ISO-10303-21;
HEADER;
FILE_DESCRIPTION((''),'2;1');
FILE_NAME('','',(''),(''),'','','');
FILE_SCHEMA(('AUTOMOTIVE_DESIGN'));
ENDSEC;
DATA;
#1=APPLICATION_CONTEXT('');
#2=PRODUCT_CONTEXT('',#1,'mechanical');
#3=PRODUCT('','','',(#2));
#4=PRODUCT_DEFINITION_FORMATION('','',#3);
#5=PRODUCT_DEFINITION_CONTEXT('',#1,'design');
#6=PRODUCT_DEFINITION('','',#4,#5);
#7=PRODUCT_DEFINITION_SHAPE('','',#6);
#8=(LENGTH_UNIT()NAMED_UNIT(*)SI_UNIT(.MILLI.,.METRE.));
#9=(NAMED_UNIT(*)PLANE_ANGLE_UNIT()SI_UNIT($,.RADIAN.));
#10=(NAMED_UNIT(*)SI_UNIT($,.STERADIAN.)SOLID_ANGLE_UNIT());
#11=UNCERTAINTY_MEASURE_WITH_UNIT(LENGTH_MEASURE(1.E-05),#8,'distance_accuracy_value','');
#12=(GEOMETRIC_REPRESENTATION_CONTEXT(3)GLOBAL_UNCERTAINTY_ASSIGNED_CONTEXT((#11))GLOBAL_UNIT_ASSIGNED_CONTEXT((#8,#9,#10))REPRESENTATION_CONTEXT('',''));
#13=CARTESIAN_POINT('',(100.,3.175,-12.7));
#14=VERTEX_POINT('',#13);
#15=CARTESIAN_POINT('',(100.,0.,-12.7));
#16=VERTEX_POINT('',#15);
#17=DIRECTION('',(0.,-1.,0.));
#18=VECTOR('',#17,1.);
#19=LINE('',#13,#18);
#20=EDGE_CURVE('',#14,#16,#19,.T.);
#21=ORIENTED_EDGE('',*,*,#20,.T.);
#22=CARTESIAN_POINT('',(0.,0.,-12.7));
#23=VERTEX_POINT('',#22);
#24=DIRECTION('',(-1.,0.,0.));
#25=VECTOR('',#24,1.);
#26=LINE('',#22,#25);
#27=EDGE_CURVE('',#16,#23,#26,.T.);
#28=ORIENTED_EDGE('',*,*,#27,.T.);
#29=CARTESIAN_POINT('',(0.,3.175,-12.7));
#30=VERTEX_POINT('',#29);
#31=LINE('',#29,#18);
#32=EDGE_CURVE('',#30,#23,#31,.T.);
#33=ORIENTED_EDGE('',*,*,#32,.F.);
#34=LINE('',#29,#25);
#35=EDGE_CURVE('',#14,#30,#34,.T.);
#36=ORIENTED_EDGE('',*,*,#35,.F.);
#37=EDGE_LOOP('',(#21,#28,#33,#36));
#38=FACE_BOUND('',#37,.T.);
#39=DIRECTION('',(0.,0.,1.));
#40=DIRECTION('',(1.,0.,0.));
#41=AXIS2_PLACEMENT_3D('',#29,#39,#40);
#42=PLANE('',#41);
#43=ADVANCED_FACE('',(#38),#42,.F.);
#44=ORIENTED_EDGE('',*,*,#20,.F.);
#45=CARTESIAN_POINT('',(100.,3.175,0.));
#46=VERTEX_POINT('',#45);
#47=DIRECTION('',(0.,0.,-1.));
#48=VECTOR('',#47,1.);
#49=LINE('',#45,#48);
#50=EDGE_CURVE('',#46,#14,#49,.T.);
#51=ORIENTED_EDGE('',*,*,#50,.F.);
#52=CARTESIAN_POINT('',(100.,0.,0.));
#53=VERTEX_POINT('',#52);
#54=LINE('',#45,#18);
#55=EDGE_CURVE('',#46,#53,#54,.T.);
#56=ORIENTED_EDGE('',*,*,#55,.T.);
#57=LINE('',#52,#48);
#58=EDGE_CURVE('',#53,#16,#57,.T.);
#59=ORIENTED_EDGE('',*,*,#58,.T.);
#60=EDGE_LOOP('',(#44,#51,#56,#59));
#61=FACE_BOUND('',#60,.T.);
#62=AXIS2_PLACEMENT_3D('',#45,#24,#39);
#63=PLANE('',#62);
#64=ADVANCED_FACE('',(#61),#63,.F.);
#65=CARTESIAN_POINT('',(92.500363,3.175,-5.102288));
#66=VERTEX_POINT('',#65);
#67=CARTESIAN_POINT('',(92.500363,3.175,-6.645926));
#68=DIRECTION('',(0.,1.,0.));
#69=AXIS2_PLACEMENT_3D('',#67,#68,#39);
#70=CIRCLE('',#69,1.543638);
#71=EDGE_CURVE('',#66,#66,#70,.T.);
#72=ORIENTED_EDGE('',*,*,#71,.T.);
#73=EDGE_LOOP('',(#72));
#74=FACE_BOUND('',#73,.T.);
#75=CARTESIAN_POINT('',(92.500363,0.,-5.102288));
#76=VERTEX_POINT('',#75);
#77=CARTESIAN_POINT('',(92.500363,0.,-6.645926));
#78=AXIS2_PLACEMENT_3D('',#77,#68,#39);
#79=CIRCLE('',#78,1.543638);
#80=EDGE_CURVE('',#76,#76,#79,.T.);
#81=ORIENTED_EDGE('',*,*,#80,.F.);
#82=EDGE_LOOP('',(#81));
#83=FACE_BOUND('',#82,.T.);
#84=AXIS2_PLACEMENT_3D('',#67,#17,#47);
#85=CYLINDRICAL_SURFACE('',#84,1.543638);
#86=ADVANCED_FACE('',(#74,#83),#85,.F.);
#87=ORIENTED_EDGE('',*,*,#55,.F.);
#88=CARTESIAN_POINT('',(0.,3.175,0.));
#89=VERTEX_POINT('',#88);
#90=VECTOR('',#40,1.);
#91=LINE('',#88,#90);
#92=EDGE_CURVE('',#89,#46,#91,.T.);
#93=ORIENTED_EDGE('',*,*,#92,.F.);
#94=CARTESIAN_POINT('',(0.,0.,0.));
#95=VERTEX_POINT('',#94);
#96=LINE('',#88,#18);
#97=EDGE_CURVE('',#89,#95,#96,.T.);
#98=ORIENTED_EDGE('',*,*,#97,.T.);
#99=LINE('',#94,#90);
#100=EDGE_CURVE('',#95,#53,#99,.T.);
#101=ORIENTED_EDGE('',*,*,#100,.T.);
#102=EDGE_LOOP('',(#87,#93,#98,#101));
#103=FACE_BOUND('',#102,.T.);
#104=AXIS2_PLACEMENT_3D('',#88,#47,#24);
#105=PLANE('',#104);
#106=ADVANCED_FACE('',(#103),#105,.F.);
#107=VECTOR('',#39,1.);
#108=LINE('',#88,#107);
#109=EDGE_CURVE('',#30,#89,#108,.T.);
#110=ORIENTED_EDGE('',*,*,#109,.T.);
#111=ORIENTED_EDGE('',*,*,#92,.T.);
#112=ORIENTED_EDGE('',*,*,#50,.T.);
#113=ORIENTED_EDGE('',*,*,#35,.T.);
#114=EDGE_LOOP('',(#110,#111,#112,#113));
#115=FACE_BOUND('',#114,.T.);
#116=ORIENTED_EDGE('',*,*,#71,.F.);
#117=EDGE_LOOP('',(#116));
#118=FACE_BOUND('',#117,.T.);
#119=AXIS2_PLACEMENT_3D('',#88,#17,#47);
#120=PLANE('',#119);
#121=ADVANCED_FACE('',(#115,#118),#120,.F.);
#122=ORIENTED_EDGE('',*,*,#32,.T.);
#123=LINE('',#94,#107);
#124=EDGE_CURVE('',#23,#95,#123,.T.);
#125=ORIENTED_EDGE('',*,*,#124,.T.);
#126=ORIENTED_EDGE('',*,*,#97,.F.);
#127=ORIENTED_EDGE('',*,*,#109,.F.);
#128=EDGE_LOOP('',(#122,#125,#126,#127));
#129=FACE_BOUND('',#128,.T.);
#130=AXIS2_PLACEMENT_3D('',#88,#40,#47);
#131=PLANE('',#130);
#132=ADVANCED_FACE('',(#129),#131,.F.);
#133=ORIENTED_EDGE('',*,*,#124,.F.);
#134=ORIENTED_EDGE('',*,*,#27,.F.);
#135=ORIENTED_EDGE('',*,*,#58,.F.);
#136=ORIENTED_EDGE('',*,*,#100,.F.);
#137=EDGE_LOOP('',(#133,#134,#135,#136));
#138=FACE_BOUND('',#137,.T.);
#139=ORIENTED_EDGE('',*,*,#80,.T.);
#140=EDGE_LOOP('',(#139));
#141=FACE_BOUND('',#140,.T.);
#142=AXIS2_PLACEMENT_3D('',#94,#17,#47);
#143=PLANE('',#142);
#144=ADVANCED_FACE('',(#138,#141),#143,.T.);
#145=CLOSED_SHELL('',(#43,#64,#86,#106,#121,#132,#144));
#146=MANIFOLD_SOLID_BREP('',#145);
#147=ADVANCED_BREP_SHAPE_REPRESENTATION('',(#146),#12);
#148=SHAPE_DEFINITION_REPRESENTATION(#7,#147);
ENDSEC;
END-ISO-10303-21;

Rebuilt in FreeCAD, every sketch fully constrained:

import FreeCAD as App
import Part
import Sketcher
from FreeCAD import Vector
Q = App.Units.Quantity


def add_polygon(sketch, points):
    """Adds a closed chain of lines whose ends are joined by coincident constraints."""
    first, n = sketch.GeometryCount, len(points)
    for a, b in zip(points, points[1:] + points[:1]):
        sketch.addGeometry(Part.LineSegment(App.Vector(*a, 0), App.Vector(*b, 0)), False)
    for i in range(n):
        sketch.addConstraint(Sketcher.Constraint("Coincident", first + i, 2, first + (i + 1) % n, 1))

doc = App.newDocument("Part")
body = doc.addObject("PartDesign::Body", "Body")

# Sketch on XZ plane
sketch1 = body.newObject("Sketcher::SketchObject", "Sketch")
sketch1.AttachmentSupport = (doc.getObject("XZ_Plane"), [""])
sketch1.MapMode = "FlatFace"
add_polygon(sketch1, [(0, -12.7), (0, 0), (100, 0), (100, -12.7)])  # lines 0-3
sketch1.addGeometry(Part.Circle(Vector(92.5, -6.6, 0), Vector(0, 0, 1), 1.5), False)  # 4
sketch1.addConstraint([
    Sketcher.Constraint("Vertical", 0),
    Sketcher.Constraint("Horizontal", 1),
    Sketcher.Constraint("Vertical", 2),
    Sketcher.Constraint("Horizontal", 3),
    Sketcher.Constraint("Coincident", 0, 2, -1, 1),
    Sketcher.Constraint("DistanceY", 0, 1, 0, 2, Q("0.5 in")),
    Sketcher.Constraint("Diameter", 4, Q("3.087277 mm")),
    Sketcher.Constraint("DistanceX", 1, 1, 1, 2, Q("100 mm")),
    Sketcher.Constraint("DistanceX", -1, 1, 4, 3, Q("92.500363 mm")),
    Sketcher.Constraint("DistanceY", 4, 3, -1, 1, Q("6.645926 mm")),
])
pad1 = body.newObject("PartDesign::Pad", "Pad")
pad1.Profile = sketch1
pad1.Length = Q("0.125 in")
pad1.Reversed = True

doc.recompute()
